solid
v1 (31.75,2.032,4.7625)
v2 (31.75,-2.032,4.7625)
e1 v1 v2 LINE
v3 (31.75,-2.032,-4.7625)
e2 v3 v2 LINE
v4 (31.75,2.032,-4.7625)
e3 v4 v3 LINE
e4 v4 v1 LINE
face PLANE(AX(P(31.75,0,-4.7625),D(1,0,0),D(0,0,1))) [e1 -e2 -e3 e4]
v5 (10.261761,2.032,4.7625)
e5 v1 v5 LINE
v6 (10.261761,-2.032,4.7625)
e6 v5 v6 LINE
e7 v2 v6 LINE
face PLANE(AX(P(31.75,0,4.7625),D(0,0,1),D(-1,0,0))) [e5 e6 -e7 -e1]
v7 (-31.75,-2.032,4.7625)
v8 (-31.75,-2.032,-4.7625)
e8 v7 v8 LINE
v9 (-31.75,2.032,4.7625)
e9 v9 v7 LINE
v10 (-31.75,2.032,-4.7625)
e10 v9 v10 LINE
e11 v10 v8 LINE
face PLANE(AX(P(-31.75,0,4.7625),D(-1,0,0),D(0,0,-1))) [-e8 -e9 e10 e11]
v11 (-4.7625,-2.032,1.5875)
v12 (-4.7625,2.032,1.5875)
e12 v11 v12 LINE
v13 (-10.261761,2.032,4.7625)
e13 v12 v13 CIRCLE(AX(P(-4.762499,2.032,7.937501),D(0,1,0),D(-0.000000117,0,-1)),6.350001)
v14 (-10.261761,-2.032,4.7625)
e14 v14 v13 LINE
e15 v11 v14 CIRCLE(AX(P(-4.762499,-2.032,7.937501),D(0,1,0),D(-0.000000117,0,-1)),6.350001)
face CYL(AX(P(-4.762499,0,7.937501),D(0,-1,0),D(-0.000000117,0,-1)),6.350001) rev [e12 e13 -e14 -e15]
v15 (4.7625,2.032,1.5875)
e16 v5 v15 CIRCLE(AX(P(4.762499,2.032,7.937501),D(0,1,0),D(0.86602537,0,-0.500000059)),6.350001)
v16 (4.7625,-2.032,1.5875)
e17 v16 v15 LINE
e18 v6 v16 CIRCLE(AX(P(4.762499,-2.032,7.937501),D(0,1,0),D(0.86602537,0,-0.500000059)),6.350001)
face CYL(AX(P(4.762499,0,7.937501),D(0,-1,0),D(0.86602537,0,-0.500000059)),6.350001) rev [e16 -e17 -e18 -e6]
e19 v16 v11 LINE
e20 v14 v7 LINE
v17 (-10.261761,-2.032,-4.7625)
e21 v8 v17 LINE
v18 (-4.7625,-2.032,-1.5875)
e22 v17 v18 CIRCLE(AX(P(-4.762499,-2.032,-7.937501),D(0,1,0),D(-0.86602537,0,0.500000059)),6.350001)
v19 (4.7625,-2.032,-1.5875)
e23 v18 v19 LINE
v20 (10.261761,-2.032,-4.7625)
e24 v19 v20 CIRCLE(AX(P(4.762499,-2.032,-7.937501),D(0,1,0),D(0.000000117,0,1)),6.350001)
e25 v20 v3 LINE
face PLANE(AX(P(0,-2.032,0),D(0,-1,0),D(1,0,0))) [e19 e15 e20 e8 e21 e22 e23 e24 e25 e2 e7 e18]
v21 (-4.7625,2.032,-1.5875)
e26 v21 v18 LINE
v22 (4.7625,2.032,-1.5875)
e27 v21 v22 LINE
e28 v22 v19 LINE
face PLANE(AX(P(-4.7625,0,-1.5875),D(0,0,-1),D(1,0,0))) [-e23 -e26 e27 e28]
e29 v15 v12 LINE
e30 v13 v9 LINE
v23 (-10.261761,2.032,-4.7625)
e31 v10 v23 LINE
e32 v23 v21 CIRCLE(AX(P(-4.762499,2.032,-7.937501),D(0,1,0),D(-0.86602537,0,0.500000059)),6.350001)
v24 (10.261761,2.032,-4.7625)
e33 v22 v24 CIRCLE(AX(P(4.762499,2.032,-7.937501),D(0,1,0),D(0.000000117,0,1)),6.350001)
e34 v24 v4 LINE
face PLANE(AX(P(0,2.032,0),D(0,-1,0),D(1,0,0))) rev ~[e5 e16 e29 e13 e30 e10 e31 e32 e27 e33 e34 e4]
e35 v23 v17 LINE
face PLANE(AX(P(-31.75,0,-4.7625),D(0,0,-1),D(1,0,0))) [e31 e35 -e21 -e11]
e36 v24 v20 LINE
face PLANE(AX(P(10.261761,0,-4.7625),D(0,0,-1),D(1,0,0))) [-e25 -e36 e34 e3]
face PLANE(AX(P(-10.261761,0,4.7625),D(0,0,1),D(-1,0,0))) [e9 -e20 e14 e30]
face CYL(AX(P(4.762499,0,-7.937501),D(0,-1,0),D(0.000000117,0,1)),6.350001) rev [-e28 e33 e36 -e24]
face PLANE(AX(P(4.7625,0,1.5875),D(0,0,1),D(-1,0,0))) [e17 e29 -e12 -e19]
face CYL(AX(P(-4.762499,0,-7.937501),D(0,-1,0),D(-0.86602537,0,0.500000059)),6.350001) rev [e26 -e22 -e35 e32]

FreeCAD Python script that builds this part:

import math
import FreeCAD as App
import Part
import Sketcher
Q = App.Units.Quantity

doc = App.newDocument("Part")
body = doc.addObject("PartDesign::Body", "Body")

# Sketch on XZ plane
sketch1 = body.newObject("Sketcher::SketchObject", "Sketch")
sketch1.AttachmentSupport = (doc.getObject("XZ_Plane"), [""])
sketch1.MapMode = "FlatFace"
sketch1.addGeometry([
    Part.LineSegment(App.Vector(-10, 5, 0), App.Vector(-32, 5, 0)),  # 0
    Part.LineSegment(App.Vector(-32, 5, 0), App.Vector(-32, -5, 0)),  # 1
    Part.LineSegment(App.Vector(-32, -5, 0), App.Vector(-10, -5, 0)),  # 2
    Part.ArcOfCircle(Part.Circle(App.Vector(-5, -8, 0), App.Vector(0, 0, 1), 6), math.radians(90), math.radians(150)),  # 3
    Part.LineSegment(App.Vector(-5, -2, 0), App.Vector(5, -2, 0)),  # 4
    Part.ArcOfCircle(Part.Circle(App.Vector(5, -8, 0), App.Vector(0, 0, 1), 6), math.radians(30), math.radians(90)),  # 5
    Part.LineSegment(App.Vector(10, -5, 0), App.Vector(32, -5, 0)),  # 6
    Part.LineSegment(App.Vector(32, -5, 0), App.Vector(32, 5, 0)),  # 7
    Part.LineSegment(App.Vector(32, 5, 0), App.Vector(10, 5, 0)),  # 8
    Part.ArcOfCircle(Part.Circle(App.Vector(5, 8, 0), App.Vector(0, 0, 1), 6), math.radians(-90), math.radians(-30)),  # 9
    Part.LineSegment(App.Vector(5, 2, 0), App.Vector(-5, 2, 0)),  # 10
    Part.ArcOfCircle(Part.Circle(App.Vector(-5, 8, 0), App.Vector(0, 0, 1), 6), math.radians(-150), math.radians(-90)),  # 11
], False)
sketch1.addConstraint([
    Sketcher.Constraint("Coincident", 0, 2, 1, 1),
    Sketcher.Constraint("Coincident", 1, 2, 2, 1),
    Sketcher.Constraint("Coincident", 2, 2, 3, 2),
    Sketcher.Constraint("Tangent", 3, 1, 4, 1),
    Sketcher.Constraint("Tangent", 4, 2, 5, 2),
    Sketcher.Constraint("Coincident", 5, 1, 6, 1),
    Sketcher.Constraint("Coincident", 6, 2, 7, 1),
    Sketcher.Constraint("Coincident", 7, 2, 8, 1),
    Sketcher.Constraint("Coincident", 8, 2, 9, 2),
    Sketcher.Constraint("Tangent", 9, 1, 10, 1),
    Sketcher.Constraint("Tangent", 10, 2, 11, 2),
    Sketcher.Constraint("Coincident", 11, 1, 0, 1),
    Sketcher.Constraint("Horizontal", 0),
    Sketcher.Constraint("Vertical", 1),
    Sketcher.Constraint("Horizontal", 2),
    Sketcher.Constraint("Horizontal", 4),
    Sketcher.Constraint("Horizontal", 6),
    Sketcher.Constraint("Vertical", 7),
    Sketcher.Constraint("Horizontal", 8),
    Sketcher.Constraint("Horizontal", 10),
    Sketcher.Constraint("Equal", 3, 5),
    Sketcher.Constraint("Equal", 5, 9),
    Sketcher.Constraint("Equal", 9, 11),
    Sketcher.Constraint("Symmetric", 3, 3, 9, 3, -1, 1),
    Sketcher.Constraint("Symmetric", 0, 2, 6, 2, -1, 1),
    Sketcher.Constraint("Symmetric", 2, 2, 5, 1, -2),
    Sketcher.Constraint("Symmetric", 8, 2, 11, 1, -2),
    Sketcher.Constraint("Equal", 10, 1),
    Sketcher.Constraint("Radius", 3, Q("0.25 in")),
    Sketcher.Constraint("DistanceY", 3, 3, 0, 2, Q("0.5 in")),
    Sketcher.Constraint("DistanceX", 4, 1, 4, 2, Q("0.375 in")),
    Sketcher.Constraint("DistanceX", 0, 2, -1, 1, Q("1.25 in")),
])
pad1 = body.newObject("PartDesign::Pad", "Pad")
pad1.Profile = sketch1
pad1.Length = Q("0.16 in")
pad1.Midplane = True

doc.recompute()
